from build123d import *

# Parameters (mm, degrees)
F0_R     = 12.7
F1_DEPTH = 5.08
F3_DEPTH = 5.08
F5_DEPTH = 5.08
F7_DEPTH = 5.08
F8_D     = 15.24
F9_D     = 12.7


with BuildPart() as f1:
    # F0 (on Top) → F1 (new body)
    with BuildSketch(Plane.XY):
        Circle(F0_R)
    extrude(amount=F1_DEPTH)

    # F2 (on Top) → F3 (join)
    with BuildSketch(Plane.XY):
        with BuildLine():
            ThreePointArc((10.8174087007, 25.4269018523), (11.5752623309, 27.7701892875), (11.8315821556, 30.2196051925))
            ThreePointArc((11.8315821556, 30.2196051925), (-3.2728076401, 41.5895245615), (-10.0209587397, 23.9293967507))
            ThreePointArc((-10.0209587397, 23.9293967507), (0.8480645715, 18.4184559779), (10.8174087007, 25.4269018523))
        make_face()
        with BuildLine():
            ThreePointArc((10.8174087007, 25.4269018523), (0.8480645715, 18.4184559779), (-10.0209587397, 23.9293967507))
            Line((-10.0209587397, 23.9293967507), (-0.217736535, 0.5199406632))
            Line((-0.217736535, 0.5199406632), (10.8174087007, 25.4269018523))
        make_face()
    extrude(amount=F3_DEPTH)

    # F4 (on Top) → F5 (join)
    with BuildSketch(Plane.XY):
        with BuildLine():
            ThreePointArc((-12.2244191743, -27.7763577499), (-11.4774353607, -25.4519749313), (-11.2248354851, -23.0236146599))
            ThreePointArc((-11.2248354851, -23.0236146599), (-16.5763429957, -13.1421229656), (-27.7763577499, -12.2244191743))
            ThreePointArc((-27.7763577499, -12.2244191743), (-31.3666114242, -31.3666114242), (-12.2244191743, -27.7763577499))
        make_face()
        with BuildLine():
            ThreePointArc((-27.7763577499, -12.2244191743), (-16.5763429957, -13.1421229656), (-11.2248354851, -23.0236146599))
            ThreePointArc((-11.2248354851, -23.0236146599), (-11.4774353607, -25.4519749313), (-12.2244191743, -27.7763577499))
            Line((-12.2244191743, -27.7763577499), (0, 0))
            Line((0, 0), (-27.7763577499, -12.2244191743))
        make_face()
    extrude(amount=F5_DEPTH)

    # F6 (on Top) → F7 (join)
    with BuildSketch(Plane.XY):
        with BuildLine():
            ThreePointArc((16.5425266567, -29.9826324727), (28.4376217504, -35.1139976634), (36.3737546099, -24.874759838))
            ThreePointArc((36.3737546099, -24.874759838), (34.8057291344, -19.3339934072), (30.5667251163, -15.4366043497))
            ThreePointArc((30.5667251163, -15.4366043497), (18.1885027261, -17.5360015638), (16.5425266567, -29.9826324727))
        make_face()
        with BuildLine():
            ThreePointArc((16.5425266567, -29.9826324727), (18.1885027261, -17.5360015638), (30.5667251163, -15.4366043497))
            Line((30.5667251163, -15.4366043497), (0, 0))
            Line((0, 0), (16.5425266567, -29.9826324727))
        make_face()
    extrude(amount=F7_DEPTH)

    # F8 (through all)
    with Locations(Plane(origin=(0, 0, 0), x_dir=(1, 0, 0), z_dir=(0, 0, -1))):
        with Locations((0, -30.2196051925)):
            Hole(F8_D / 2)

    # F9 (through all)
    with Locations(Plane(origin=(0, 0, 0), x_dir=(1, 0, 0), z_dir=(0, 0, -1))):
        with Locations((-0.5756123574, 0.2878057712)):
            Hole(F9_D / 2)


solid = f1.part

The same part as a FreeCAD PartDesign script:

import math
import FreeCAD as App
import Part
import Sketcher

V = App.Vector
Q = App.Units.Quantity

doc = App.newDocument("Part")
body = doc.addObject("PartDesign::Body", "Body")

# Sketch on XY plane
sketch1 = body.newObject("Sketcher::SketchObject", "Sketch")
sketch1.AttachmentSupport = (doc.getObject("XY_Plane"), [""])
sketch1.MapMode = "FlatFace"
sketch1.addGeometry(Part.Circle(V(0, 0, 0), V(0, 0, 1), 13), False)
sketch1.addConstraint([
    Sketcher.Constraint("Coincident", 0, 3, -1, 1),
    Sketcher.Constraint("Diameter", 0, Q("1 in")),
])
pad1 = body.newObject("PartDesign::Pad", "Pad")
pad1.Profile = sketch1
pad1.Length = Q("0.2 in")

# Sketch on XY plane
sketch2 = body.newObject("Sketcher::SketchObject", "Sketch001")
sketch2.AttachmentSupport = (doc.getObject("XY_Plane"), [""])
sketch2.MapMode = "FlatFace"
sketch2.addGeometry([
    Part.ArcOfCircle(Part.Circle(V(0, 30.2, 0), V(0, 0, 1), 11.8), math.radians(-24), math.radians(0)),
    Part.ArcOfCircle(Part.Circle(V(0, 30.2, 0), V(0, 0, 1), 11.8), math.radians(0), math.radians(212)),
    Part.LineSegment(V(-10, 23.9, 0), V(-0.2, 0.5, 0)),
    Part.LineSegment(V(-0.2, 0.5, 0), V(10.8, 25.4, 0)),
], False)
sketch2.addConstraint([
    Sketcher.Constraint("Tangent", 0, 2, 1, 1),
    Sketcher.Constraint("Coincident", 1, 2, 2, 1),
    Sketcher.Constraint("Coincident", 2, 2, 3, 1),
    Sketcher.Constraint("Tangent", 3, 2, 0, 1),
    Sketcher.Constraint("Equal", 0, 1),
    Sketcher.Constraint("PointOnObject", 0, 3, -2),
    Sketcher.Constraint("Horizontal", 1, 3, 0, 2),
    Sketcher.Constraint("Radius", 0, 11.831582),
    Sketcher.Constraint("DistanceY", -1, 1, 3, 2, 25.426902),
    Sketcher.Constraint("Distance", 2, 25.37924),
    Sketcher.Constraint("DistanceX", 1, 2, -1, 1, 10.020959),
    Sketcher.Constraint("DistanceY", -1, 1, 2, 2, 0.519941),
])
pad2 = body.newObject("PartDesign::Pad", "Pad001")
pad2.Profile = sketch2
pad2.Length = Q("0.2 in")

# Sketch on XY plane
sketch3 = body.newObject("Sketcher::SketchObject", "Sketch002")
sketch3.AttachmentSupport = (doc.getObject("XY_Plane"), [""])
sketch3.MapMode = "FlatFace"
sketch3.addGeometry([
    Part.ArcOfCircle(Part.Circle(V(-23, -23, 0), V(0, 0, 1), 12), math.radians(114), math.radians(336)),
    Part.LineSegment(V(-12, -28, 0), V(0, 0, 0)),
    Part.LineSegment(V(0, 0, 0), V(-28, -12, 0)),
], False)
sketch3.addConstraint([
    Sketcher.Constraint("Tangent", 0, 2, 1, 1),
    Sketcher.Constraint("Coincident", 1, 2, 2, 1),
    Sketcher.Constraint("Tangent", 2, 2, 0, 1),
    Sketcher.Constraint("Coincident", 1, 2, -1, 1),
    Sketcher.Constraint("Radius", 0, 11.798779),
    Sketcher.Constraint("DistanceX", 0, 2, -1, 1, 12.224419),
    Sketcher.Constraint("DistanceY", 2, 2, -1, 1, 12.224419),
])
pad3 = body.newObject("PartDesign::Pad", "Pad002")
pad3.Profile = sketch3
pad3.Length = Q("0.2 in")

# Sketch on XY plane
sketch4 = body.newObject("Sketcher::SketchObject", "Sketch003")
sketch4.AttachmentSupport = (doc.getObject("XY_Plane"), [""])
sketch4.MapMode = "FlatFace"
sketch4.addGeometry([
    Part.ArcOfCircle(Part.Circle(V(26, -25, 0), V(0, 0, 1), 11), math.radians(-151), math.radians(0)),
    Part.ArcOfCircle(Part.Circle(V(26, -25, 0), V(0, 0, 1), 11), math.radians(0), math.radians(63)),
    Part.LineSegment(V(31, -15, 0), V(0, 0, 0)),
    Part.LineSegment(V(0, 0, 0), V(17, -30, 0)),
], False)
sketch4.addConstraint([
    Sketcher.Constraint("Tangent", 0, 2, 1, 1),
    Sketcher.Constraint("Tangent", 1, 2, 2, 1),
    Sketcher.Constraint("Coincident", 2, 2, 3, 1),
    Sketcher.Constraint("Tangent", 3, 2, 0, 1),
    Sketcher.Constraint("Coincident", 2, 2, -1, 1),
    Sketcher.Constraint("Equal", 0, 1),
    Sketcher.Constraint("Horizontal", 1, 3, 0, 2),
    Sketcher.Constraint("Radius", 0, 10.573424),
    Sketcher.Constraint("DistanceX", 3, 2, 1, 2, 14.024198),
    Sketcher.Constraint("DistanceX", -1, 1, 0, 3, 25.800331),
])
pad4 = body.newObject("PartDesign::Pad", "Pad003")
pad4.Profile = sketch4
pad4.Length = Q("0.2 in")

# Sketch on XY plane
sketch5 = body.newObject("Sketcher::SketchObject", "Sketch004")
sketch5.AttachmentSupport = (doc.getObject("XY_Plane"), [""])
sketch5.MapMode = "FlatFace"
sketch5.addGeometry(Part.Circle(V(0, 30, 0), V(0, 0, 1), 8), False)
sketch5.addConstraint([
    Sketcher.Constraint("PointOnObject", 0, 3, -2),
    Sketcher.Constraint("Diameter", 0, Q("0.6 in")),
    Sketcher.Constraint("DistanceY", -1, 1, 0, 3, 30.219605),
])
doc.recompute()
hole = body.newObject("PartDesign::Hole", "Hole")
hole.Profile = sketch5
hole.ThreadType = "None"
hole.Diameter = Q("0.6 in")
hole.DepthType = "ThroughAll"
hole.Reversed = True

# Sketch on XY plane
sketch6 = body.newObject("Sketcher::SketchObject", "Sketch005")
sketch6.AttachmentSupport = (doc.getObject("XY_Plane"), [""])
sketch6.MapMode = "FlatFace"
sketch6.addGeometry(Part.Circle(V(-1, 0, 0), V(0, 0, 1), 6), False)
sketch6.addConstraint([
    Sketcher.Constraint("Diameter", 0, Q("0.5 in")),
    Sketcher.Constraint("DistanceX", 0, 3, -1, 1, 0.575612),
    Sketcher.Constraint("DistanceY", 0, 3, -1, 1, 0.287806),
])
doc.recompute()
hole2 = body.newObject("PartDesign::Hole", "Hole001")
hole2.Profile = sketch6
hole2.ThreadType = "None"
hole2.Diameter = Q("0.5 in")
hole2.DepthType = "ThroughAll"
hole2.Reversed = True

doc.recompute()
